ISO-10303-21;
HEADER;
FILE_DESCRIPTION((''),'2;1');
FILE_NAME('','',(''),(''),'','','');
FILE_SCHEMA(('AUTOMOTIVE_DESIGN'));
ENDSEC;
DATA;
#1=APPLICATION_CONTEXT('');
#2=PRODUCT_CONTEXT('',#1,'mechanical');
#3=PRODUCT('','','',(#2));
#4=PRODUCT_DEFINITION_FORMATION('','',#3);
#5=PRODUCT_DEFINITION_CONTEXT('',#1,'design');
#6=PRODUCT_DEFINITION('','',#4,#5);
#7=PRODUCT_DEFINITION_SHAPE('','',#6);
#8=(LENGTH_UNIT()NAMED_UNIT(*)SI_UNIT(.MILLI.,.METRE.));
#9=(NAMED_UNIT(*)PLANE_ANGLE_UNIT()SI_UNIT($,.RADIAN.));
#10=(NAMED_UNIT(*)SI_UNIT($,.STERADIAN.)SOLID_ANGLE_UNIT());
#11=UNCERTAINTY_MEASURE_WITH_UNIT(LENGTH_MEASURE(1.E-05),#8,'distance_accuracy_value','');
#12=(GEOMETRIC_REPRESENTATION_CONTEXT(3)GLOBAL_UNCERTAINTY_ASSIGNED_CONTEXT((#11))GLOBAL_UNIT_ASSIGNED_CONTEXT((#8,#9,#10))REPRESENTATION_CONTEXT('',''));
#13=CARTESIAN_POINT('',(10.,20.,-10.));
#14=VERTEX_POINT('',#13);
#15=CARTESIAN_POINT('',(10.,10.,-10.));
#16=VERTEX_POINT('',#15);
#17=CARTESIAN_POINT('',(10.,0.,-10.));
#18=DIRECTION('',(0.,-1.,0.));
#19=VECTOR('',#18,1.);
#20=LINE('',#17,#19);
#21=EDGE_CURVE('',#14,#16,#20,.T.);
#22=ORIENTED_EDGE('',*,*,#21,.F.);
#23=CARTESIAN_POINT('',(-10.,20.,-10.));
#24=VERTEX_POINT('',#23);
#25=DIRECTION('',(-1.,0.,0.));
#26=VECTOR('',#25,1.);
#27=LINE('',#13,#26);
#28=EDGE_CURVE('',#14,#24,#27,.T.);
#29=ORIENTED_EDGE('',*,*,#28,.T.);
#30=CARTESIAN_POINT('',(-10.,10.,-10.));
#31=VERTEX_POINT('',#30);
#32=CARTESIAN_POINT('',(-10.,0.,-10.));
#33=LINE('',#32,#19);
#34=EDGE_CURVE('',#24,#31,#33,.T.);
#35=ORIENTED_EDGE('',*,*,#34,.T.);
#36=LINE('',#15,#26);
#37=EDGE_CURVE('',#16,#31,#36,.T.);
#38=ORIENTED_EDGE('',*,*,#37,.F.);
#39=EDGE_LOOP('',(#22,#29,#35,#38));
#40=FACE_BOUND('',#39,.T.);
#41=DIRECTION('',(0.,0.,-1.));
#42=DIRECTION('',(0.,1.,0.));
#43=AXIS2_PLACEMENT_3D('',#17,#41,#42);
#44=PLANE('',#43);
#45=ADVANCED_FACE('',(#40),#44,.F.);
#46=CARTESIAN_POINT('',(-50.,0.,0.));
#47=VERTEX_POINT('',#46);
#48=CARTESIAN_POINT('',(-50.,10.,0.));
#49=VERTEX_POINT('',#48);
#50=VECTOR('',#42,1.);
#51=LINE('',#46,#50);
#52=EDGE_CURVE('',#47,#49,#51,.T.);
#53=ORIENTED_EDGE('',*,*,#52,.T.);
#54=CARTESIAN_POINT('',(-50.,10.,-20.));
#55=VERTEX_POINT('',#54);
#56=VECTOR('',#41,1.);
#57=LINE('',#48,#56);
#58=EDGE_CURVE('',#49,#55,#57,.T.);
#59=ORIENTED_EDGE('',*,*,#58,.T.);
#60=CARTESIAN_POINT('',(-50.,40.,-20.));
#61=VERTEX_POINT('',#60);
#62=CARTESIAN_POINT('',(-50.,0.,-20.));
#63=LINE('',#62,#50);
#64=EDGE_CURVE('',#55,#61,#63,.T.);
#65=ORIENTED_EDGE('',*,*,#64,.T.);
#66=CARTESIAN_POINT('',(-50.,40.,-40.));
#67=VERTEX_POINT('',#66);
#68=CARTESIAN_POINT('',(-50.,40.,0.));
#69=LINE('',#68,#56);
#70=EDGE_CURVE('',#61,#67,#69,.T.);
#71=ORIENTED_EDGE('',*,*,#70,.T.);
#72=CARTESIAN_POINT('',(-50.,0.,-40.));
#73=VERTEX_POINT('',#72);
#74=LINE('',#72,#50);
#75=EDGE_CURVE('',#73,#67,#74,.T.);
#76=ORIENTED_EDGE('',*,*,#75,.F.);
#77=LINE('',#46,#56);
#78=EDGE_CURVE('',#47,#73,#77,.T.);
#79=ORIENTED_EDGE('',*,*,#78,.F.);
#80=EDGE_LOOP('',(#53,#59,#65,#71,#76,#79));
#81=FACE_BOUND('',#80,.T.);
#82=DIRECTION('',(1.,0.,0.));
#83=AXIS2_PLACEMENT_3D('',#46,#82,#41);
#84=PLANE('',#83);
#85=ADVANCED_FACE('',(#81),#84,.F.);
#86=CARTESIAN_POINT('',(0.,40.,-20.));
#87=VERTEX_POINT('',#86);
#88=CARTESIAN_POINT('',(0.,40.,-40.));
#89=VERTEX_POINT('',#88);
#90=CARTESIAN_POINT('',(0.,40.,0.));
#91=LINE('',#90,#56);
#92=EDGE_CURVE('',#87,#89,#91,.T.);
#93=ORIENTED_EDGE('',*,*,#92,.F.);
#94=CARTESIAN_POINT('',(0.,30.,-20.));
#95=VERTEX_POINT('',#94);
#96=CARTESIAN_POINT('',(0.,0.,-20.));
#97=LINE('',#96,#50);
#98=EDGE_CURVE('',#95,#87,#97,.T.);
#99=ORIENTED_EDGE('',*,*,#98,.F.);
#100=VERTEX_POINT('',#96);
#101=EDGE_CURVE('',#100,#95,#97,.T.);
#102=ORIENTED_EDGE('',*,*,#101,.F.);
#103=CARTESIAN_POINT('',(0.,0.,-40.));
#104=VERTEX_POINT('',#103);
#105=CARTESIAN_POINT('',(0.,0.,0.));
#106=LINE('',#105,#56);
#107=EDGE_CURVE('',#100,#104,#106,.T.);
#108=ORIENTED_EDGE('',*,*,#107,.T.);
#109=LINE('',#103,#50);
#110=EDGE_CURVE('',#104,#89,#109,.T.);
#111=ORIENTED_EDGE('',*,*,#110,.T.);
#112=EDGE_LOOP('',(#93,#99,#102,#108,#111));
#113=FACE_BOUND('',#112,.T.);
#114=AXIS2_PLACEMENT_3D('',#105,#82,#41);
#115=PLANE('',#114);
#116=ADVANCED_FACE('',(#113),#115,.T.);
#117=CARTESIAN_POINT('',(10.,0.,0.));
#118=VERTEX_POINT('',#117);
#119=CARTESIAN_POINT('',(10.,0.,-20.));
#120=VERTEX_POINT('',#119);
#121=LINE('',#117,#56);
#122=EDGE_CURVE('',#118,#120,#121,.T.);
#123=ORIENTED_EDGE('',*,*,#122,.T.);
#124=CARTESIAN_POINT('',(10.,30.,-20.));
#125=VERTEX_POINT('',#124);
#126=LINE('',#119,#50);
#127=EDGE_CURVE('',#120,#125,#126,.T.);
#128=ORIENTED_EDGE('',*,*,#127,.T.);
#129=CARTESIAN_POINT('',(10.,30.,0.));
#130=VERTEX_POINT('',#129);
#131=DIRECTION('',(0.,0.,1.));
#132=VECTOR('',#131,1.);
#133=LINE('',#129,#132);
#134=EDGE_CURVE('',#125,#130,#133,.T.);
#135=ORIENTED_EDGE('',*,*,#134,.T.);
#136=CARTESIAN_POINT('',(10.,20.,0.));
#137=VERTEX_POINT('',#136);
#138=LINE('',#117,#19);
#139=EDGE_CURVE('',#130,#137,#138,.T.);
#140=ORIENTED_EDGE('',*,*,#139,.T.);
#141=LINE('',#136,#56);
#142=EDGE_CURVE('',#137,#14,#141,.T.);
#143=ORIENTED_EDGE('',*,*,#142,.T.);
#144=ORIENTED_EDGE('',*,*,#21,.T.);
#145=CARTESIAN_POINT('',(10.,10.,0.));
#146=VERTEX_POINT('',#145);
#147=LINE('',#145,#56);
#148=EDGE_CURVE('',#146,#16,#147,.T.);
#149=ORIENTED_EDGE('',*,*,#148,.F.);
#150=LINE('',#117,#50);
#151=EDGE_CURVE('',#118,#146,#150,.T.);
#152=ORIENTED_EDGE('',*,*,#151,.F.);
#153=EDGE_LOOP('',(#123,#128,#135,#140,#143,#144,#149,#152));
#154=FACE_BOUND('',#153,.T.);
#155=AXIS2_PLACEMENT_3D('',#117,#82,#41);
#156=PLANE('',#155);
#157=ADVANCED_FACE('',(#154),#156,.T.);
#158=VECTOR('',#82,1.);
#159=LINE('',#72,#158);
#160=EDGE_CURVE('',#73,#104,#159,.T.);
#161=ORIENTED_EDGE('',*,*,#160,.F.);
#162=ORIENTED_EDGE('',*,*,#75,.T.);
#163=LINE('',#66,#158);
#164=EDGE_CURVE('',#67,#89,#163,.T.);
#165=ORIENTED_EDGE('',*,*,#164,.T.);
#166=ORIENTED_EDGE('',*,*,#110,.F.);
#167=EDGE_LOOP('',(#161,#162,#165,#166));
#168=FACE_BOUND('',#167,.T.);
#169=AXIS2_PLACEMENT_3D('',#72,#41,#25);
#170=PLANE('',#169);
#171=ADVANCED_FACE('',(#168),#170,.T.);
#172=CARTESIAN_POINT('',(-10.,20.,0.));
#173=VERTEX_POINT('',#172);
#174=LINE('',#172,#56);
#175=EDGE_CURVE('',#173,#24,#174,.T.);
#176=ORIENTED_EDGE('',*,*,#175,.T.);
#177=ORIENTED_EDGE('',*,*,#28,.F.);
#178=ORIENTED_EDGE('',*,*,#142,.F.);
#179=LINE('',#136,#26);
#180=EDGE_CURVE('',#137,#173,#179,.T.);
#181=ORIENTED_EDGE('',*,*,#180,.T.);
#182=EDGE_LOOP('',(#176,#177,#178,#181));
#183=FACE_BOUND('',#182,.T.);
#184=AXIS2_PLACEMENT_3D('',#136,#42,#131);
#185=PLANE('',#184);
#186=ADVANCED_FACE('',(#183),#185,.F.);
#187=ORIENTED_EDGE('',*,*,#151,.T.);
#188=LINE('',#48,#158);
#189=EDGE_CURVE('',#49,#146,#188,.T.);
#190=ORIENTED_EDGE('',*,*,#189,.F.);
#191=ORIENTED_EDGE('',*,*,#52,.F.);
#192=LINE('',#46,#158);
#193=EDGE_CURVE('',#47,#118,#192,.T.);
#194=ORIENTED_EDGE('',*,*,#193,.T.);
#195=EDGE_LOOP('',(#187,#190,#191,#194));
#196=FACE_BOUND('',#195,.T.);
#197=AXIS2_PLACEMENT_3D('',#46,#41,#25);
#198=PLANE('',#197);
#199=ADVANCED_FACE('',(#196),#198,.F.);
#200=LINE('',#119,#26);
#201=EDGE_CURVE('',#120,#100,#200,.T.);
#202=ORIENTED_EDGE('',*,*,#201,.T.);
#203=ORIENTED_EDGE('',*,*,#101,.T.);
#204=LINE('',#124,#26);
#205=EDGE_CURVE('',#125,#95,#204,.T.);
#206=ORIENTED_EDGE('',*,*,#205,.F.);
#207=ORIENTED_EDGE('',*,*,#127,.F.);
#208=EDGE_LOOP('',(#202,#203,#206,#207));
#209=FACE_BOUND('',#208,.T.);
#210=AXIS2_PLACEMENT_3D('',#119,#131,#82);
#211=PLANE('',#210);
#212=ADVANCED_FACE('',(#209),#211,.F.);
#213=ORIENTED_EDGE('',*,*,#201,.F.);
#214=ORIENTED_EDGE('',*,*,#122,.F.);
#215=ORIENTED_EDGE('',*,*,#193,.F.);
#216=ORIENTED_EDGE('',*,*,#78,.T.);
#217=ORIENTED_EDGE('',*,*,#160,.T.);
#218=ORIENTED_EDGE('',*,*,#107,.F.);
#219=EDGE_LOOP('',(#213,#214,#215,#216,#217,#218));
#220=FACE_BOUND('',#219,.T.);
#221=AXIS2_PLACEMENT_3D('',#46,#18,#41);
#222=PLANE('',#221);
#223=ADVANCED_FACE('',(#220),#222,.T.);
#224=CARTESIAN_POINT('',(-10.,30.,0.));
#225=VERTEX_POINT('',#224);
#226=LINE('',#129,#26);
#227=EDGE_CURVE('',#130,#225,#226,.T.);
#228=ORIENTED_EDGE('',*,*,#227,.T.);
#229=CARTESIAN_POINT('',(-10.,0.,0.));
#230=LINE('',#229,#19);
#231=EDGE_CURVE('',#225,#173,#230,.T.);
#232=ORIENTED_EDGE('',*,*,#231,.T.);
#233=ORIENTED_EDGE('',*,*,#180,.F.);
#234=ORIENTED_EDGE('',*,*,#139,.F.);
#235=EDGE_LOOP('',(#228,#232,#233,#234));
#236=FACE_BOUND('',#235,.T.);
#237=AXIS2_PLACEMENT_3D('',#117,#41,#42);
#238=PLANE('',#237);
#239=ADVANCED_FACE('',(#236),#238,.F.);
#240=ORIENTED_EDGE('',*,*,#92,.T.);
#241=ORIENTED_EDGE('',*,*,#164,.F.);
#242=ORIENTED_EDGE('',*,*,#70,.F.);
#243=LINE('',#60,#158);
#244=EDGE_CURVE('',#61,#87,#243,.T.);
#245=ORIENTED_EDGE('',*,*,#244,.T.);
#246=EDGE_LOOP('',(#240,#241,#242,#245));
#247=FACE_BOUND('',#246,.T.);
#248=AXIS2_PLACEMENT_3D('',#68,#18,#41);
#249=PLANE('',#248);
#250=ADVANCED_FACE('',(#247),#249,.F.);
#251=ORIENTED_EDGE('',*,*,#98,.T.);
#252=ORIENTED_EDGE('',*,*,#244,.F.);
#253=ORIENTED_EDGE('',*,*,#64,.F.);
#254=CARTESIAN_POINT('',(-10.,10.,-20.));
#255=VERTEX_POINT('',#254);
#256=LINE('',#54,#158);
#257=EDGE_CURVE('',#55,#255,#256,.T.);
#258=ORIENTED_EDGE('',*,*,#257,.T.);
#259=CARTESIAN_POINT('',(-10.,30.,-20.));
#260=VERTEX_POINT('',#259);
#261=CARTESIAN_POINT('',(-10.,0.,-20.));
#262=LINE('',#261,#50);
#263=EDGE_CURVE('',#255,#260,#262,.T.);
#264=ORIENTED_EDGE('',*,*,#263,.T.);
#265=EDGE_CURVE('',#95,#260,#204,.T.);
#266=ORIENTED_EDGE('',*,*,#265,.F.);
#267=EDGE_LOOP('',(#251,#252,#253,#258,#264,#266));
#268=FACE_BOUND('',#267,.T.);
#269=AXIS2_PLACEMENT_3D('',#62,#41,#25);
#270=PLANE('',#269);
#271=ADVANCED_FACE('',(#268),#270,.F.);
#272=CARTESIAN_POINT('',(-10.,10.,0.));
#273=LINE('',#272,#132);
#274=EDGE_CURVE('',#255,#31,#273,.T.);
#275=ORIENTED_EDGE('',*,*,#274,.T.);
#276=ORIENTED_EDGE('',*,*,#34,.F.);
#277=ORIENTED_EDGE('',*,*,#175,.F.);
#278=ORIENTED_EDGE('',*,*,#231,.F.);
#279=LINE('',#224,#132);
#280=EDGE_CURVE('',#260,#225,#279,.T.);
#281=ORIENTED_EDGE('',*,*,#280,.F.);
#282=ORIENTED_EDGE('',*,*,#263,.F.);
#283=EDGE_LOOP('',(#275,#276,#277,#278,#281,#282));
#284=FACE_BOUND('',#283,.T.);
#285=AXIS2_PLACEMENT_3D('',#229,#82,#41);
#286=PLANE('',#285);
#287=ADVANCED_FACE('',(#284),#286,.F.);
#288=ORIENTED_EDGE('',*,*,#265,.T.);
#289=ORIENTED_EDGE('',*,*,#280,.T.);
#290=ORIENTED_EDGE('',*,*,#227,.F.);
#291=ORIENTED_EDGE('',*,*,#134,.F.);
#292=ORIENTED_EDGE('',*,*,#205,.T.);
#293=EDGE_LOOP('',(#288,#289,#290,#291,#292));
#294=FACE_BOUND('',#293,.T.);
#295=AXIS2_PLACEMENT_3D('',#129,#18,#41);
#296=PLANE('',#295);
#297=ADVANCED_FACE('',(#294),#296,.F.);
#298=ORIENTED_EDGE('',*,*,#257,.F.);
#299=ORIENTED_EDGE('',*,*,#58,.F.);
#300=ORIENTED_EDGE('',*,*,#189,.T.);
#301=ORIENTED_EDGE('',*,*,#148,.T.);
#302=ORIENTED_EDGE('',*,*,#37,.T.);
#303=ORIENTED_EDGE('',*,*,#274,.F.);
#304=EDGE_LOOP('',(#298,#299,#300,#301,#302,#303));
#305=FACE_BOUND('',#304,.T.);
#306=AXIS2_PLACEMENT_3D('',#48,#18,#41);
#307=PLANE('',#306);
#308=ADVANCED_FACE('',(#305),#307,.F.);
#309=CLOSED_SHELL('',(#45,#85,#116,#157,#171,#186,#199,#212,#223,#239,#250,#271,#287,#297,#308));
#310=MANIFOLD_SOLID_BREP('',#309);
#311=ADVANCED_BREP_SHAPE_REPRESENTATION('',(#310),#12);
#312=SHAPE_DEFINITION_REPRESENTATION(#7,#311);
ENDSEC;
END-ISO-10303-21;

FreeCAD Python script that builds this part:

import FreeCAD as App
import Part
import Sketcher
from FreeCAD import Vector
Q = App.Units.Quantity

doc = App.newDocument("Part")
params = doc.addObject("Spreadsheet::Sheet", "Params")
for row, (alias, value) in enumerate([
    ("sketch1_width", "30 mm"),
    ("sketch1_width2", "10 mm"),
    ("pad1_length", "50 mm"),
    ("sketch2_width", "10 mm"),
    ("sketch2_height", "20 mm"),
    ("pad2_length", "20 mm"),
], start=1):
    params.set(f"A{row}", alias)
    params.set(f"B{row}", "=" + value)
    params.setAlias(f"B{row}", alias)

body = doc.addObject("PartDesign::Body", "Body")

# Sketch on YZ plane
sketch1 = doc.addObject("Sketcher::SketchObject", "Sketch")
body.addObject(sketch1)
sketch1.AttachmentSupport = (doc.YZ_Plane, [""])
sketch1.MapMode = "FlatFace"
sketch1.addGeometry([
    Part.LineSegment(Vector(40, -20, 0), Vector(10, -20, 0)),  # 0
    Part.LineSegment(Vector(10, -20, 0), Vector(10, 0, 0)),  # 1
    Part.LineSegment(Vector(10, 0, 0), Vector(0, 0, 0)),  # 2
    Part.LineSegment(Vector(0, 0, 0), Vector(0, -40, 0)),  # 3
    Part.LineSegment(Vector(0, -40, 0), Vector(40, -40, 0)),  # 4
    Part.LineSegment(Vector(40, -40, 0), Vector(40, -20, 0)),  # 5
], False)
sketch1.addConstraint([
    Sketcher.Constraint("Coincident", 0, 2, 1, 1),
    Sketcher.Constraint("Coincident", 1, 2, 2, 1),
    Sketcher.Constraint("Coincident", 2, 2, 3, 1),
    Sketcher.Constraint("Coincident", 3, 2, 4, 1),
    Sketcher.Constraint("Coincident", 4, 2, 5, 1),
    Sketcher.Constraint("Coincident", 5, 2, 0, 1),
    Sketcher.Constraint("Horizontal", 0),
    Sketcher.Constraint("Vertical", 1),
    Sketcher.Constraint("Horizontal", 2),
    Sketcher.Constraint("Vertical", 3),
    Sketcher.Constraint("Horizontal", 4),
    Sketcher.Constraint("Vertical", 5),
    Sketcher.Constraint("Coincident", 2, 2, -1, 1),
    Sketcher.Constraint("Equal", 4, 3),
    Sketcher.Constraint("Equal", 1, 5),
    Sketcher.Constraint("DistanceX", 0, 2, 0, 1, Q("30 mm")),
    Sketcher.Constraint("DistanceX", 2, 2, 2, 1, Q("10 mm")),
])
sketch1.setExpression("Constraints[15]", "Params.sketch1_width")
sketch1.setExpression("Constraints[16]", "Params.sketch1_width2")
pad1 = doc.addObject("PartDesign::Pad", "Pad")
body.addObject(pad1)
pad1.Profile = sketch1
pad1.setExpression("Length", "Params.pad1_length")
pad1.Reversed = True

# Sketch on YZ plane
sketch2 = doc.addObject("Sketcher::SketchObject", "Sketch001")
body.addObject(sketch2)
sketch2.AttachmentSupport = (doc.YZ_Plane, [""])
sketch2.MapMode = "FlatFace"
sketch2.addGeometry([
    Part.LineSegment(Vector(10, 0, 0), Vector(0, 0, 0)),  # 0
    Part.LineSegment(Vector(0, 0, 0), Vector(0, -20, 0)),  # 1
    Part.LineSegment(Vector(0, -20, 0), Vector(30, -20, 0)),  # 2
    Part.LineSegment(Vector(30, -20, 0), Vector(30, 0, 0)),  # 3
    Part.LineSegment(Vector(30, 0, 0), Vector(20, 0, 0)),  # 4
    Part.LineSegment(Vector(20, 0, 0), Vector(20, -10, 0)),  # 5
    Part.LineSegment(Vector(20, -10, 0), Vector(10, -10, 0)),  # 6
    Part.LineSegment(Vector(10, -10, 0), Vector(10, 0, 0)),  # 7
], False)
sketch2.addConstraint([
    Sketcher.Constraint("Coincident", 0, 2, 1, 1),
    Sketcher.Constraint("Coincident", 1, 2, 2, 1),
    Sketcher.Constraint("Coincident", 2, 2, 3, 1),
    Sketcher.Constraint("Coincident", 3, 2, 4, 1),
    Sketcher.Constraint("Coincident", 4, 2, 5, 1),
    Sketcher.Constraint("Coincident", 5, 2, 6, 1),
    Sketcher.Constraint("Coincident", 6, 2, 7, 1),
    Sketcher.Constraint("Coincident", 7, 2, 0, 1),
    Sketcher.Constraint("Horizontal", 0),
    Sketcher.Constraint("Vertical", 1),
    Sketcher.Constraint("Horizontal", 2),
    Sketcher.Constraint("Vertical", 3),
    Sketcher.Constraint("Horizontal", 4),
    Sketcher.Constraint("Vertical", 5),
    Sketcher.Constraint("Horizontal", 6),
    Sketcher.Constraint("Vertical", 7),
    Sketcher.Constraint("Coincident", 0, 2, -1, 1),
    Sketcher.Constraint("PointOnObject", 3, 2, -1),
    Sketcher.Constraint("Equal", 0, 4),
    Sketcher.Constraint("Equal", 4, 6),
    Sketcher.Constraint("Equal", 6, 5),
    Sketcher.Constraint("DistanceX", 0, 2, 0, 1, Q("10 mm")),
    Sketcher.Constraint("DistanceY", 1, 2, 1, 1, Q("20 mm")),
])
sketch2.setExpression("Constraints[21]", "Params.sketch2_width")
sketch2.setExpression("Constraints[22]", "Params.sketch2_height")
pad2 = doc.addObject("PartDesign::Pad", "Pad001")
body.addObject(pad2)
pad2.Profile = sketch2
pad2.setExpression("Length", "Params.pad2_length")
pad2.Midplane = True

doc.recompute()
